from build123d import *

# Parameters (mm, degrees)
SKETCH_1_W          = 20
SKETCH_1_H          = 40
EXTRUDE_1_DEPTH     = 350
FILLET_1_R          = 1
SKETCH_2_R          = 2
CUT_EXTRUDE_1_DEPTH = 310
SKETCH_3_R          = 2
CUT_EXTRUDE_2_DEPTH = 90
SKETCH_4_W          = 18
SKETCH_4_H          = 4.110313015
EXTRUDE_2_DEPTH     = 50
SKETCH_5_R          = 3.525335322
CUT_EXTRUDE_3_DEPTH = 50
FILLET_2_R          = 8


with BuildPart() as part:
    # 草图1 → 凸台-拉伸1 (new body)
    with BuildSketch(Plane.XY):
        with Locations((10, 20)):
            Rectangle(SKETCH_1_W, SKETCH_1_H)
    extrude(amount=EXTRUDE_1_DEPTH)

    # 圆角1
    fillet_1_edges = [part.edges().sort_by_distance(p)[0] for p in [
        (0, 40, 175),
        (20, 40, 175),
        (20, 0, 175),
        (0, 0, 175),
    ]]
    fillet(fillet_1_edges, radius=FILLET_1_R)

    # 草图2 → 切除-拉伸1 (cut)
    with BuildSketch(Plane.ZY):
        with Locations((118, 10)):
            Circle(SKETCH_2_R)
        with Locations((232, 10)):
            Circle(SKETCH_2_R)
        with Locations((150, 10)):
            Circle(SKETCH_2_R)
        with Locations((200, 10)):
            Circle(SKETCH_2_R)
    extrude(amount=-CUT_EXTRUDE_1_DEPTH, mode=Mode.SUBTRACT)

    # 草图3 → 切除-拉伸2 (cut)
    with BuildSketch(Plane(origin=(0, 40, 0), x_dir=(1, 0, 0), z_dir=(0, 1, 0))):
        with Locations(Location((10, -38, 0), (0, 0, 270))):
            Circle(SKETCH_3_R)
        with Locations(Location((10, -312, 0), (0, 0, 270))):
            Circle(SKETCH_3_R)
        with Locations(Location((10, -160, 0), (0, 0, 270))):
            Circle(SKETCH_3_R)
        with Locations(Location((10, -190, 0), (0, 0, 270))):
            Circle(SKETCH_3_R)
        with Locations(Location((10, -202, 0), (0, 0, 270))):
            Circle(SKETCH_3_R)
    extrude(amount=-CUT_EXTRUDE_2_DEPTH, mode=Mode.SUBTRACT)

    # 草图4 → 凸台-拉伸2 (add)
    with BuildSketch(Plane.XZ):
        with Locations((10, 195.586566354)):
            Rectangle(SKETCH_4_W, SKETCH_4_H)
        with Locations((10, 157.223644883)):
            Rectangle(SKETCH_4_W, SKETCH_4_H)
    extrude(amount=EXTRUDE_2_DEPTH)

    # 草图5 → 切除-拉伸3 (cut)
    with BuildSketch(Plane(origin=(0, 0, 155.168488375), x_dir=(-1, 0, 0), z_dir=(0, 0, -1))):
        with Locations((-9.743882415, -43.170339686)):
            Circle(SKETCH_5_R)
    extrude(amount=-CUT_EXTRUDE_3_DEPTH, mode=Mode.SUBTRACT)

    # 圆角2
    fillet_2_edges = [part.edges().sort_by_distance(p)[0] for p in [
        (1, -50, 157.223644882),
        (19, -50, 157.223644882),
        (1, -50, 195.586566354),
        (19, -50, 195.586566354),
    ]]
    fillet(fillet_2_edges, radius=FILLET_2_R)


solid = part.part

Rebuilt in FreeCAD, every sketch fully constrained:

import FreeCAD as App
import Part
import Sketcher

V = App.Vector
Q = App.Units.Quantity


def edges_at(feature, points):
    """Names of the edges that pass closest to the given points."""
    edges = feature.Shape.Edges
    near = lambda p: min(range(len(edges)), key=lambda i: edges[i].distToShape(Part.Vertex(*p))[0])
    return sorted({f"Edge{near(p) + 1}" for p in points})


def add_polygon(sketch, points):
    """Adds a closed chain of lines whose ends are joined by coincident constraints."""
    first, n = sketch.GeometryCount, len(points)
    for a, b in zip(points, points[1:] + points[:1]):
        sketch.addGeometry(Part.LineSegment(App.Vector(*a, 0), App.Vector(*b, 0)), False)
    for i in range(n):
        sketch.addConstraint(Sketcher.Constraint("Coincident", first + i, 2, first + (i + 1) % n, 1))

doc = App.newDocument("Part")
params = doc.addObject("Spreadsheet::Sheet", "Params")
for row, (alias, value) in enumerate([
    ("sketch1_width", "20 mm"),
    ("sketch1_height", "40 mm"),
    ("pad1_length", "350 mm"),
    ("fillet_radius", "1 mm"),
    ("sketch2_diameter", "4 mm"),
    ("pocket1_length", "310 mm"),
    ("sketch3_diameter", "4 mm"),
    ("pocket2_length", "90 mm"),
    ("sketch4_width", "18 mm"),
    ("pad2_length", "50 mm"),
    ("pocket3_length", "50 mm"),
    ("fillet2_radius", "8 mm"),
], start=1):
    params.set(f"A{row}", alias)
    params.set(f"B{row}", "=" + value)
    params.setAlias(f"B{row}", alias)

body = doc.addObject("PartDesign::Body", "Body")

# Sketch on XY plane
sketch1 = body.newObject("Sketcher::SketchObject", "Sketch")
sketch1.AttachmentSupport = (doc.getObject("XY_Plane"), [""])
sketch1.MapMode = "FlatFace"
add_polygon(sketch1, [(0, 40), (0, 0), (20, 0), (20, 40)])  # lines 0-3
sketch1.addConstraint([
    Sketcher.Constraint("Vertical", 0),
    Sketcher.Constraint("Horizontal", 1),
    Sketcher.Constraint("Vertical", 2),
    Sketcher.Constraint("Horizontal", 3),
    Sketcher.Constraint("Coincident", 0, 2, -1, 1),
    Sketcher.Constraint("DistanceX", 1, 1, 1, 2, Q("20 mm")),
    Sketcher.Constraint("DistanceY", 0, 2, 0, 1, Q("40 mm")),
])
sketch1.setExpression("Constraints[9]", "Params.sketch1_width")
sketch1.setExpression("Constraints[10]", "Params.sketch1_height")
pad1 = body.newObject("PartDesign::Pad", "Pad")
pad1.Profile = sketch1
pad1.setExpression("Length", "Params.pad1_length")
doc.recompute()

fillet = body.newObject("PartDesign::Fillet", "Fillet")
fillet.Base = (pad1, edges_at(pad1, [
    (0, 40, 175),
    (20, 40, 175),
    (20, 0, 175),
    (0, 0, 175),
]))
fillet.setExpression("Radius", "Params.fillet_radius")

# Sketch on YZ plane
sketch2 = body.newObject("Sketcher::SketchObject", "Sketch001")
sketch2.AttachmentSupport = (doc.getObject("YZ_Plane"), [""])
sketch2.MapMode = "FlatFace"
sketch2.addGeometry([
    Part.Circle(V(10, 118, 0), V(0, 0, 1), 2),
    Part.Circle(V(10, 232, 0), V(0, 0, 1), 2),
    Part.Circle(V(10, 150, 0), V(0, 0, 1), 2),
    Part.Circle(V(10, 200, 0), V(0, 0, 1), 2),
], False)
sketch2.addConstraint([
    Sketcher.Constraint("Equal", 0, 1),
    Sketcher.Constraint("Equal", 1, 2),
    Sketcher.Constraint("Equal", 2, 3),
    Sketcher.Constraint("Vertical", 0, 3, 1, 3),
    Sketcher.Constraint("Vertical", 1, 3, 2, 3),
    Sketcher.Constraint("Vertical", 2, 3, 3, 3),
    Sketcher.Constraint("Diameter", 0, Q("4 mm")),
    Sketcher.Constraint("DistanceX", -1, 1, 0, 3, Q("10 mm")),
    Sketcher.Constraint("DistanceY", -1, 1, 0, 3, Q("118 mm")),
    Sketcher.Constraint("DistanceY", -1, 1, 1, 3, Q("232 mm")),
    Sketcher.Constraint("DistanceY", -1, 1, 2, 3, Q("150 mm")),
    Sketcher.Constraint("DistanceY", -1, 1, 3, 3, Q("200 mm")),
])
sketch2.setExpression("Constraints[6]", "Params.sketch2_diameter")
pocket1 = body.newObject("PartDesign::Pocket", "Pocket")
pocket1.Profile = sketch2
pocket1.setExpression("Length", "Params.pocket1_length")
pocket1.Reversed = True

# Sketch on XZ plane
sketch3 = body.newObject("Sketcher::SketchObject", "Sketch002")
sketch3.AttachmentSupport = (doc.getObject("XZ_Plane"), [""])
sketch3.MapMode = "FlatFace"
sketch3.AttachmentOffset = App.Placement(V(0, 0, -40), App.Rotation())
sketch3.addGeometry([
    Part.Circle(V(10, 38, 0), V(0, 0, 1), 2),  # 0
    Part.Circle(V(10, 312, 0), V(0, 0, 1), 2),  # 1
    Part.Circle(V(10, 160, 0), V(0, 0, 1), 2),  # 2
    Part.Circle(V(10, 190, 0), V(0, 0, 1), 2),  # 3
    Part.Circle(V(10, 202, 0), V(0, 0, 1), 2),  # 4
], False)
sketch3.addConstraint([
    Sketcher.Constraint("Equal", 0, 1),
    Sketcher.Constraint("Equal", 1, 2),
    Sketcher.Constraint("Equal", 2, 3),
    Sketcher.Constraint("Equal", 3, 4),
    Sketcher.Constraint("Vertical", 0, 3, 1, 3),
    Sketcher.Constraint("Vertical", 1, 3, 2, 3),
    Sketcher.Constraint("Vertical", 2, 3, 3, 3),
    Sketcher.Constraint("Vertical", 3, 3, 4, 3),
    Sketcher.Constraint("Diameter", 0, Q("4 mm")),
    Sketcher.Constraint("DistanceX", -1, 1, 0, 3, Q("10 mm")),
    Sketcher.Constraint("DistanceY", -1, 1, 0, 3, Q("38 mm")),
    Sketcher.Constraint("DistanceY", -1, 1, 1, 3, Q("312 mm")),
    Sketcher.Constraint("DistanceY", -1, 1, 2, 3, Q("160 mm")),
    Sketcher.Constraint("DistanceY", -1, 1, 3, 3, Q("190 mm")),
    Sketcher.Constraint("DistanceY", -1, 1, 4, 3, Q("202 mm")),
])
sketch3.setExpression("Constraints[8]", "Params.sketch3_diameter")
pocket2 = body.newObject("PartDesign::Pocket", "Pocket001")
pocket2.Profile = sketch3
pocket2.setExpression("Length", "Params.pocket2_length")
pocket2.Reversed = True

# Sketch on XZ plane
sketch4 = body.newObject("Sketcher::SketchObject", "Sketch003")
sketch4.AttachmentSupport = (doc.getObject("XZ_Plane"), [""])
sketch4.MapMode = "FlatFace"
add_polygon(sketch4, [(1, 197.6), (1, 193.5), (19, 193.5), (19, 197.6)])  # lines 0-3
add_polygon(sketch4, [(1, 159.3), (1, 155.2), (19, 155.2), (19, 159.3)])  # lines 4-7
sketch4.addConstraint([
    Sketcher.Constraint("Vertical", 0),
    Sketcher.Constraint("Horizontal", 1),
    Sketcher.Constraint("Vertical", 2),
    Sketcher.Constraint("Horizontal", 3),
    Sketcher.Constraint("Vertical", 4),
    Sketcher.Constraint("Horizontal", 5),
    Sketcher.Constraint("Vertical", 6),
    Sketcher.Constraint("Horizontal", 7),
    Sketcher.Constraint("Vertical", 3, 2, 4, 2),
    Sketcher.Constraint("Vertical", 2, 2, 5, 2),
    Sketcher.Constraint("Equal", 2, 4),
    Sketcher.Constraint("DistanceX", 1, 1, 1, 2, Q("18 mm")),
    Sketcher.Constraint("DistanceX", -1, 1, 0, 2, Q("1 mm")),
    Sketcher.Constraint("DistanceY", -1, 1, 6, 2, Q("159.278801 mm")),
    Sketcher.Constraint("DistanceY", 0, 2, 0, 1, Q("4.110313 mm")),
    Sketcher.Constraint("DistanceY", -1, 1, 0, 2, Q("193.53141 mm")),
])
sketch4.setExpression("Constraints[19]", "Params.sketch4_width")
pad2 = body.newObject("PartDesign::Pad", "Pad001")
pad2.Profile = sketch4
pad2.setExpression("Length", "Params.pad2_length")

# Sketch on XY plane
sketch5 = body.newObject("Sketcher::SketchObject", "Sketch004")
sketch5.AttachmentSupport = (doc.getObject("XY_Plane"), [""])
sketch5.MapMode = "FlatFace"
sketch5.AttachmentOffset = App.Placement(V(0, 0, 155.168488), App.Rotation())
sketch5.addGeometry(Part.Circle(V(9.7, -43.2, 0), V(0, 0, 1), 3.5), False)
sketch5.addConstraint([
    Sketcher.Constraint("Diameter", 0, Q("7.050671 mm")),
    Sketcher.Constraint("DistanceY", 0, 3, -1, 1, Q("43.17034 mm")),
    Sketcher.Constraint("DistanceX", -1, 1, 0, 3, Q("9.743882 mm")),
])
pocket3 = body.newObject("PartDesign::Pocket", "Pocket002")
pocket3.Profile = sketch5
pocket3.setExpression("Length", "Params.pocket3_length")
pocket3.Reversed = True
doc.recompute()

fillet2 = body.newObject("PartDesign::Fillet", "Fillet001")
fillet2.Base = (pocket3, edges_at(pocket3, [
    (1, -50, 157.224),
    (19, -50, 157.224),
    (1, -50, 195.587),
    (19, -50, 195.587),
]))
fillet2.setExpression("Radius", "Params.fillet2_radius")

doc.recompute()
